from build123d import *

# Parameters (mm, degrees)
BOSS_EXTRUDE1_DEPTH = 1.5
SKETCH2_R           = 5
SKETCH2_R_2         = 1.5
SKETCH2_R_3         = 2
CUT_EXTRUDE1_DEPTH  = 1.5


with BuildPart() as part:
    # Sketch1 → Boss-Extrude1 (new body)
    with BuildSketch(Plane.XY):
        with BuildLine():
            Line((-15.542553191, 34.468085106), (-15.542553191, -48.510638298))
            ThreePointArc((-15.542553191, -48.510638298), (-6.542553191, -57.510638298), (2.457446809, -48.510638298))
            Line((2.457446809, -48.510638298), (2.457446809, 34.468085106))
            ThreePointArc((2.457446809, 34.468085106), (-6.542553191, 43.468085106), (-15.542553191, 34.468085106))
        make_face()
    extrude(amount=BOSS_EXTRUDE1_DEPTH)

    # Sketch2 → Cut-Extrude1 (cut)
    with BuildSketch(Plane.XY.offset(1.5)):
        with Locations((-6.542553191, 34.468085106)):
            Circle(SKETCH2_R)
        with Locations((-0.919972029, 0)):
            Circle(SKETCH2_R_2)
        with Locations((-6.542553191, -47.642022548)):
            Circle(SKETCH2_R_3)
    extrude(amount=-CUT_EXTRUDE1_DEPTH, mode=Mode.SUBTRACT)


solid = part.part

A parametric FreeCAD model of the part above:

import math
import FreeCAD as App
import Part
import Sketcher
Q = App.Units.Quantity

doc = App.newDocument("Part")
body = doc.addObject("PartDesign::Body", "Body")

sketch1 = doc.addObject("Sketcher::SketchObject", "Sketch")
body.addObject(sketch1)
sketch1.AttachmentSupport = (doc.XY_Plane, [""])
sketch1.MapMode = "FlatFace"
sketch1.addGeometry([
    Part.LineSegment(App.Vector(-16, 34, 0), App.Vector(-16, -49, 0)),
    Part.ArcOfCircle(Part.Circle(App.Vector(-7, -49, 0), App.Vector(0, 0, 1), 9), math.radians(180), math.radians(360)),
    Part.LineSegment(App.Vector(2, -49, 0), App.Vector(2, 34, 0)),
    Part.ArcOfCircle(Part.Circle(App.Vector(-7, 34, 0), App.Vector(0, 0, 1), 9), math.radians(0), math.radians(180)),
], False)
sketch1.addConstraint([
    Sketcher.Constraint("Tangent", 0, 2, 1, 1),
    Sketcher.Constraint("Tangent", 1, 2, 2, 1),
    Sketcher.Constraint("Tangent", 2, 2, 3, 1),
    Sketcher.Constraint("Tangent", 3, 2, 0, 1),
    Sketcher.Constraint("Vertical", 0),
    Sketcher.Constraint("Vertical", 2),
    Sketcher.Constraint("Radius", 1, Q("9 mm")),
    Sketcher.Constraint("DistanceY", 0, 2, 0, 1, Q("82.978723 mm")),
    Sketcher.Constraint("DistanceY", 1, 3, -1, 1, Q("48.510638 mm")),
    Sketcher.Constraint("DistanceX", 1, 3, -1, 1, Q("6.542553 mm")),
])
pad1 = doc.addObject("PartDesign::Pad", "Pad")
body.addObject(pad1)
pad1.Profile = sketch1
pad1.Length = 1.5

sketch2 = doc.addObject("Sketcher::SketchObject", "Sketch001")
body.addObject(sketch2)
sketch2.AttachmentSupport = (doc.XY_Plane, [""])
sketch2.MapMode = "FlatFace"
sketch2.AttachmentOffset = App.Placement(App.Vector(0, 0, 1.5), App.Rotation())
sketch2.addGeometry([
    Part.Circle(App.Vector(-6.5, 34.5, 0), App.Vector(0, 0, 1), 5),
    Part.Circle(App.Vector(-0.9, 0, 0), App.Vector(0, 0, 1), 1.5),
    Part.Circle(App.Vector(-6.5, -47.6, 0), App.Vector(0, 0, 1), 2),
], False)
sketch2.addConstraint([
    Sketcher.Constraint("PointOnObject", 1, 3, -1),
    Sketcher.Constraint("Vertical", 0, 3, 2, 3),
    Sketcher.Constraint("Diameter", 0, Q("10 mm")),
    Sketcher.Constraint("Diameter", 1, Q("3 mm")),
    Sketcher.Constraint("Diameter", 2, Q("4 mm")),
    Sketcher.Constraint("DistanceX", 0, 3, 1, 3, Q("5.622581 mm")),
    Sketcher.Constraint("DistanceX", 0, 3, -1, 1, Q("6.542553 mm")),
    Sketcher.Constraint("DistanceY", -1, 1, 0, 3, Q("34.468085 mm")),
    Sketcher.Constraint("DistanceY", 2, 3, -1, 1, Q("47.642023 mm")),
])
pocket1 = doc.addObject("PartDesign::Pocket", "Pocket")
body.addObject(pocket1)
pocket1.Profile = sketch2
pocket1.Length = 1.5

doc.recompute()
